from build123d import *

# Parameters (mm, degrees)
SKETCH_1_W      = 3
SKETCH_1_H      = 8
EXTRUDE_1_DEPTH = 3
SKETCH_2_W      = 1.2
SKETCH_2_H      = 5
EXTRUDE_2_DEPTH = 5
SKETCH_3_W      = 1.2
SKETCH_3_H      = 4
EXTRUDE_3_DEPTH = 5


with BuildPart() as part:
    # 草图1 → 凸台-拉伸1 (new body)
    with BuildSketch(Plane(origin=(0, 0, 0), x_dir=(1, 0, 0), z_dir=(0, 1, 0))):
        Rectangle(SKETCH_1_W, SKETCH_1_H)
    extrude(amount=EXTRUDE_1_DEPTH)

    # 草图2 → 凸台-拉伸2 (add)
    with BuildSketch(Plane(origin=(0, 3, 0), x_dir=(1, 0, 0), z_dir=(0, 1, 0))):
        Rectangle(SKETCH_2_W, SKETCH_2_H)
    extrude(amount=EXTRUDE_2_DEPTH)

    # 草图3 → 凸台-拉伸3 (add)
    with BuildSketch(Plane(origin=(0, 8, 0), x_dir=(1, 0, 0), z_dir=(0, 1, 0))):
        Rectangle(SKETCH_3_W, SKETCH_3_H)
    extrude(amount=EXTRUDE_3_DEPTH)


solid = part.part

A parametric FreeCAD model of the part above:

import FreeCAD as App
import Part
import Sketcher
from FreeCAD import Vector

doc = App.newDocument("Part")
body = doc.addObject("PartDesign::Body", "Body")

sketch1 = doc.addObject("Sketcher::SketchObject", "Sketch")
body.addObject(sketch1)
sketch1.AttachmentSupport = (doc.XZ_Plane, [""])
sketch1.MapMode = "FlatFace"
sketch1.addGeometry([
    Part.LineSegment(Vector(-1.5, -4, 0), Vector(-1.5, 4, 0)),
    Part.LineSegment(Vector(-1.5, 4, 0), Vector(1.5, 4, 0)),
    Part.LineSegment(Vector(1.5, 4, 0), Vector(1.5, -4, 0)),
    Part.LineSegment(Vector(1.5, -4, 0), Vector(-1.5, -4, 0)),
], False)
sketch1.addConstraint([
    Sketcher.Constraint("Coincident", 0, 2, 1, 1),
    Sketcher.Constraint("Coincident", 1, 2, 2, 1),
    Sketcher.Constraint("Coincident", 2, 2, 3, 1),
    Sketcher.Constraint("Coincident", 3, 2, 0, 1),
    Sketcher.Constraint("Vertical", 0),
    Sketcher.Constraint("Horizontal", 1),
    Sketcher.Constraint("Vertical", 2),
    Sketcher.Constraint("Horizontal", 3),
    Sketcher.Constraint("Symmetric", 0, 2, 2, 2, -1, 1),
    Sketcher.Constraint("DistanceX", 1, 1, 1, 2, 3.0),
    Sketcher.Constraint("DistanceY", 0, 1, 0, 2, 8.0),
])
pad1 = doc.addObject("PartDesign::Pad", "Pad")
body.addObject(pad1)
pad1.Profile = sketch1
pad1.Length = 3
pad1.Reversed = True

sketch2 = doc.addObject("Sketcher::SketchObject", "Sketch001")
body.addObject(sketch2)
sketch2.AttachmentSupport = (doc.XZ_Plane, [""])
sketch2.MapMode = "FlatFace"
sketch2.AttachmentOffset = App.Placement(Vector(0, 0, -3), App.Rotation())
sketch2.addGeometry([
    Part.LineSegment(Vector(-0.6, -2.5, 0), Vector(-0.6, 2.5, 0)),
    Part.LineSegment(Vector(-0.6, 2.5, 0), Vector(0.6, 2.5, 0)),
    Part.LineSegment(Vector(0.6, 2.5, 0), Vector(0.6, -2.5, 0)),
    Part.LineSegment(Vector(0.6, -2.5, 0), Vector(-0.6, -2.5, 0)),
], False)
sketch2.addConstraint([
    Sketcher.Constraint("Coincident", 0, 2, 1, 1),
    Sketcher.Constraint("Coincident", 1, 2, 2, 1),
    Sketcher.Constraint("Coincident", 2, 2, 3, 1),
    Sketcher.Constraint("Coincident", 3, 2, 0, 1),
    Sketcher.Constraint("Vertical", 0),
    Sketcher.Constraint("Horizontal", 1),
    Sketcher.Constraint("Vertical", 2),
    Sketcher.Constraint("Horizontal", 3),
    Sketcher.Constraint("Symmetric", 0, 2, 2, 2, -1, 1),
    Sketcher.Constraint("DistanceY", 0, 1, 0, 2, 5.0),
    Sketcher.Constraint("DistanceX", 1, 1, 1, 2, 1.2),
])
pad2 = doc.addObject("PartDesign::Pad", "Pad001")
body.addObject(pad2)
pad2.Profile = sketch2
pad2.Length = 5
pad2.Reversed = True

sketch3 = doc.addObject("Sketcher::SketchObject", "Sketch002")
body.addObject(sketch3)
sketch3.AttachmentSupport = (doc.XZ_Plane, [""])
sketch3.MapMode = "FlatFace"
sketch3.AttachmentOffset = App.Placement(Vector(0, 0, -8), App.Rotation())
sketch3.addGeometry([
    Part.LineSegment(Vector(-0.6, -2, 0), Vector(-0.6, 2, 0)),
    Part.LineSegment(Vector(-0.6, 2, 0), Vector(0.6, 2, 0)),
    Part.LineSegment(Vector(0.6, 2, 0), Vector(0.6, -2, 0)),
    Part.LineSegment(Vector(0.6, -2, 0), Vector(-0.6, -2, 0)),
], False)
sketch3.addConstraint([
    Sketcher.Constraint("Coincident", 0, 2, 1, 1),
    Sketcher.Constraint("Coincident", 1, 2, 2, 1),
    Sketcher.Constraint("Coincident", 2, 2, 3, 1),
    Sketcher.Constraint("Coincident", 3, 2, 0, 1),
    Sketcher.Constraint("Vertical", 0),
    Sketcher.Constraint("Horizontal", 1),
    Sketcher.Constraint("Vertical", 2),
    Sketcher.Constraint("Horizontal", 3),
    Sketcher.Constraint("Symmetric", 0, 2, 2, 2, -1, 1),
    Sketcher.Constraint("DistanceY", 0, 1, 0, 2, 4.0),
    Sketcher.Constraint("DistanceX", 1, 1, 1, 2, 1.2),
])
pad3 = doc.addObject("PartDesign::Pad", "Pad002")
body.addObject(pad3)
pad3.Profile = sketch3
pad3.Length = 5
pad3.Reversed = True

doc.recompute()
